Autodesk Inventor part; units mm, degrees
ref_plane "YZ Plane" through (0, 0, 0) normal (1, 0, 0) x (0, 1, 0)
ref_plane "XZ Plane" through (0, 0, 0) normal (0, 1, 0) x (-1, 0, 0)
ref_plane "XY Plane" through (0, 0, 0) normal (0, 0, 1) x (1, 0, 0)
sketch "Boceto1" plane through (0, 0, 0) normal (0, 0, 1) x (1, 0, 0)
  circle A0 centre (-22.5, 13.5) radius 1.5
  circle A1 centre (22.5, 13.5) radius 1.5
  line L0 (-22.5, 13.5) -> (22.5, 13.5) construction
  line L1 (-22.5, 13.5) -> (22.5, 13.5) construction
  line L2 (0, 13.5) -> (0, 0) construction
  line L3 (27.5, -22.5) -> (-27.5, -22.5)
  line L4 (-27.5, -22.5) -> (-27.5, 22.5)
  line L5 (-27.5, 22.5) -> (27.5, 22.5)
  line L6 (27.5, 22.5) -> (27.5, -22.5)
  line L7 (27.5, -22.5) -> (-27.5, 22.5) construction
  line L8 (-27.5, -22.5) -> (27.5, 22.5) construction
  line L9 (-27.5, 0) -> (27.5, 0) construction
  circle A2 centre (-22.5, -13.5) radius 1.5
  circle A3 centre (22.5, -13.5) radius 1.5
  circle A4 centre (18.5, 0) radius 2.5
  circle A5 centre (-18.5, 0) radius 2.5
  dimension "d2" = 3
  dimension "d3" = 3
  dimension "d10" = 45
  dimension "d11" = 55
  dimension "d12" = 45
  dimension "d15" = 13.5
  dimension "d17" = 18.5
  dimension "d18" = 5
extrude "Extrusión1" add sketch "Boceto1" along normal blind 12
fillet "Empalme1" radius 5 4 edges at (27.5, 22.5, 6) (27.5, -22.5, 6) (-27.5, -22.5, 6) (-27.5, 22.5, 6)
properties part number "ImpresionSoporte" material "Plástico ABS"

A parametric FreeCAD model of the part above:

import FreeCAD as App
import Part
import Sketcher


def edges_at(feature, points):
    """Names of the edges that pass closest to the given points."""
    edges = feature.Shape.Edges
    near = lambda p: min(range(len(edges)), key=lambda i: edges[i].distToShape(Part.Vertex(*p))[0])
    return sorted({f"Edge{near(p) + 1}" for p in points})


def add_polygon(sketch, points):
    """Adds a closed chain of lines whose ends are joined by coincident constraints."""
    first, n = sketch.GeometryCount, len(points)
    for a, b in zip(points, points[1:] + points[:1]):
        sketch.addGeometry(Part.LineSegment(App.Vector(*a, 0), App.Vector(*b, 0)), False)
    for i in range(n):
        sketch.addConstraint(Sketcher.Constraint("Coincident", first + i, 2, first + (i + 1) % n, 1))

doc = App.newDocument("Part")
body = doc.addObject("PartDesign::Body", "Body")

# Sketch on XY plane
sketch1 = doc.addObject("Sketcher::SketchObject", "Sketch")
body.addObject(sketch1)
sketch1.AttachmentSupport = (doc.XY_Plane, [""])
sketch1.MapMode = "FlatFace"
add_polygon(sketch1, [(-27.5, -22.5), (27.5, -22.5), (27.5, 22.5), (-27.5, 22.5)])  # lines 0-3
sketch1.addGeometry(Part.Circle(App.Vector(-22.5, -13.5, 0), App.Vector(0, 0, 1), 1.5), False)  # 4
sketch1.addGeometry(Part.Circle(App.Vector(22.5, -13.5, 0), App.Vector(0, 0, 1), 1.5), False)  # 5
sketch1.addGeometry(Part.Circle(App.Vector(-18.5, 0, 0), App.Vector(0, 0, 1), 2.5), False)  # 6
sketch1.addGeometry(Part.Circle(App.Vector(-22.5, 13.5, 0), App.Vector(0, 0, 1), 1.5), False)  # 7
sketch1.addGeometry(Part.Circle(App.Vector(18.5, 0, 0), App.Vector(0, 0, 1), 2.5), False)  # 8
sketch1.addGeometry(Part.Circle(App.Vector(22.5, 13.5, 0), App.Vector(0, 0, 1), 1.5), False)  # 9
sketch1.addConstraint(Sketcher.Constraint("Horizontal", 0))
sketch1.addConstraint(Sketcher.Constraint("Vertical", 1))
sketch1.addConstraint(Sketcher.Constraint("Horizontal", 2))
sketch1.addConstraint(Sketcher.Constraint("Vertical", 3))
sketch1.addConstraint(Sketcher.Constraint("Equal", 4, 5))
sketch1.addConstraint(Sketcher.Constraint("Equal", 5, 7))
sketch1.addConstraint(Sketcher.Constraint("Equal", 6, 8))
sketch1.addConstraint(Sketcher.Constraint("Equal", 7, 9))
sketch1.addConstraint(Sketcher.Constraint("Symmetric", 5, 3, 7, 3, -1, 1))
sketch1.addConstraint(Sketcher.Constraint("Symmetric", 6, 3, 8, 3, -1, 1))
sketch1.addConstraint(Sketcher.Constraint("Symmetric", 4, 3, 9, 3, -1, 1))
sketch1.addConstraint(Sketcher.Constraint("Symmetric", 0, 2, 2, 2, -1, 1))
sketch1.addConstraint(Sketcher.Constraint("Symmetric", 4, 3, 5, 3, -2))
sketch1.addConstraint(Sketcher.Constraint("PointOnObject", 6, 3, -1))
sketch1.addConstraint(Sketcher.Constraint("Diameter", 4, 3.0))
sketch1.addConstraint(Sketcher.Constraint("Diameter", 6, 5.0))
sketch1.addConstraint(Sketcher.Constraint("DistanceX", 0, 1, 0, 2, 55.0))
sketch1.addConstraint(Sketcher.Constraint("DistanceY", 1, 1, 1, 2, 45.0))
sketch1.addConstraint(Sketcher.Constraint("DistanceX", 4, 3, 5, 3, 45.0))
sketch1.addConstraint(Sketcher.Constraint("DistanceY", 4, 3, -1, 1, 13.5))
sketch1.addConstraint(Sketcher.Constraint("DistanceX", 6, 3, -1, 1, 18.5))
pad1 = doc.addObject("PartDesign::Pad", "Pad")
body.addObject(pad1)
pad1.Profile = sketch1
pad1.Length = 12
doc.recompute()

fillet = doc.addObject("PartDesign::Fillet", "Fillet")
body.addObject(fillet)
fillet.Base = (pad1, edges_at(pad1, [
    (27.5, 22.5, 6),
    (27.5, -22.5, 6),
    (-27.5, -22.5, 6),
    (-27.5, 22.5, 6),
]))
fillet.Radius = 5

doc.recompute()
